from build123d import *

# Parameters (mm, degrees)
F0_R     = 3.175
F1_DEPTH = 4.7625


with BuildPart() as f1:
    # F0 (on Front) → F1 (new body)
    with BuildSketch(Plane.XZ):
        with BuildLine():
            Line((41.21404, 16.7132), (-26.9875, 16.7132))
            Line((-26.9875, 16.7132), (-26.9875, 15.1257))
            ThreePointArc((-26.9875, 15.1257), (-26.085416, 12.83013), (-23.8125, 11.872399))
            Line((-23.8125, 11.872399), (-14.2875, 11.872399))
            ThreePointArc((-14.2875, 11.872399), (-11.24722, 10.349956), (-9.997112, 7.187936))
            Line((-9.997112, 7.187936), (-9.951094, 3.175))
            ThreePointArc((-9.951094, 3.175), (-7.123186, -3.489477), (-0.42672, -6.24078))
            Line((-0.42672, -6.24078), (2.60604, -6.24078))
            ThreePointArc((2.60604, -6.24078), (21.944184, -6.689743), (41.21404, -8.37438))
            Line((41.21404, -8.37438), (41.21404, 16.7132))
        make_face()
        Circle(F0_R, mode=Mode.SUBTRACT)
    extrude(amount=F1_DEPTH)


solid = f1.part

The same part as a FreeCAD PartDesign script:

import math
import FreeCAD as App
import Part
import Sketcher

V = App.Vector
Q = App.Units.Quantity

doc = App.newDocument("Part")
body = doc.addObject("PartDesign::Body", "Body")

# Sketch on XZ plane
sketch1 = body.newObject("Sketcher::SketchObject", "Sketch")
sketch1.AttachmentSupport = (doc.getObject("XZ_Plane"), [""])
sketch1.MapMode = "FlatFace"
sketch1.addGeometry(Part.LineSegment(V(41.2, 16.7, 0), V(-27, 16.7, 0)), False)
sketch1.addGeometry(Part.LineSegment(V(-27, 16.7, 0), V(-27, 15.1, 0)), False)
sketch1.addGeometry(Part.ArcOfCircle(Part.Circle(V(-23.8, 15, 0), V(0, 0, 1), 3.2), math.radians(179), math.radians(270)), False)
sketch1.addGeometry(Part.LineSegment(V(-23.8, 11.9, 0), V(-14.3, 11.9, 0)), False)
sketch1.addGeometry(Part.ArcOfCircle(Part.Circle(V(-14.8, 7.1, 0), V(0, 0, 1), 4.8), math.radians(1), math.radians(84)), False)
sketch1.addGeometry(Part.LineSegment(V(-10, 7.2, 0), V(-10, 3.2, 0)), False)
sketch1.addGeometry(Part.ArcOfCircle(Part.Circle(V(-0.4, 3.3, 0), V(0, 0, 1), 9.5), math.radians(-179), math.radians(-90)), False)
sketch1.addGeometry(Part.LineSegment(V(-0.4, -6.2, 0), V(2.6, -6.2, 0)), False)
sketch1.addGeometry(Part.ArcOfCircle(Part.Circle(V(5.3, -308.6, 0), V(0, 0, 1), 302.3), math.radians(83.17), math.radians(90.5)), False)
sketch1.addGeometry(Part.LineSegment(V(41.2, -8.4, 0), V(41.2, 16.7, 0)), False)
sketch1.addGeometry(Part.Circle(V(0, 0, 0), V(0, 0, 1), 3.2), False)
sketch1.addConstraint(Sketcher.Constraint("Coincident", 0, 2, 1, 1))
sketch1.addConstraint(Sketcher.Constraint("Coincident", 1, 2, 2, 1))
sketch1.addConstraint(Sketcher.Constraint("Tangent", 2, 2, 3, 1))
sketch1.addConstraint(Sketcher.Constraint("Coincident", 3, 2, 4, 2))
sketch1.addConstraint(Sketcher.Constraint("Tangent", 4, 1, 5, 1))
sketch1.addConstraint(Sketcher.Constraint("Tangent", 5, 2, 6, 1))
sketch1.addConstraint(Sketcher.Constraint("Tangent", 6, 2, 7, 1))
sketch1.addConstraint(Sketcher.Constraint("Coincident", 7, 2, 8, 2))
sketch1.addConstraint(Sketcher.Constraint("Coincident", 8, 1, 9, 1))
sketch1.addConstraint(Sketcher.Constraint("Coincident", 9, 2, 0, 1))
sketch1.addConstraint(Sketcher.Constraint("Horizontal", 0))
sketch1.addConstraint(Sketcher.Constraint("Vertical", 1))
sketch1.addConstraint(Sketcher.Constraint("Horizontal", 3))
sketch1.addConstraint(Sketcher.Constraint("Horizontal", 7))
sketch1.addConstraint(Sketcher.Constraint("Vertical", 9))
sketch1.addConstraint(Sketcher.Constraint("Coincident", 10, 3, -1, 1))
sketch1.addConstraint(Sketcher.Constraint("Diameter", 10, Q("0.25 in")))
sketch1.addConstraint(Sketcher.Constraint("Radius", 4, Q("0.1875 in")))
sketch1.addConstraint(Sketcher.Constraint("Radius", 6, Q("0.375 in")))
sketch1.addConstraint(Sketcher.Constraint("DistanceX", 1, 2, 3, 2, Q("0.5 in")))
sketch1.addConstraint(Sketcher.Constraint("DistanceX", 3, 1, 3, 2, Q("0.375 in")))
sketch1.addConstraint(Sketcher.Constraint("DistanceY", 1, 2, 1, 1, Q("0.0625 in")))
sketch1.addConstraint(Sketcher.Constraint("DistanceX", 7, 2, 8, 1, Q("1.52 in")))
sketch1.addConstraint(Sketcher.Constraint("Distance", 5, Q("0.158 in")))
sketch1.addConstraint(Sketcher.Constraint("DistanceX", 0, 2, 0, 1, Q("2.6851 in")))
sketch1.addConstraint(Sketcher.Constraint("DistanceX", 7, 1, 7, 2, Q("0.1194 in")))
sketch1.addConstraint(Sketcher.Constraint("DistanceY", 9, 1, 9, 2, Q("0.9877 in")))
sketch1.addConstraint(Sketcher.Constraint("DistanceX", 2, 3, -1, 1, Q("0.9375 in")))
sketch1.addConstraint(Sketcher.Constraint("DistanceY", -1, 1, 0, 2, Q("0.658 in")))
sketch1.addConstraint(Sketcher.Constraint("DistanceY", -1, 1, 5, 2, Q("0.125 in")))
sketch1.addConstraint(Sketcher.Constraint("Radius", 8, Q("302.341318 mm")))
sketch1.addConstraint(Sketcher.Constraint("DistanceY", 8, 1, 7, 2, Q("0.084 in")))
pad1 = body.newObject("PartDesign::Pad", "Pad")
pad1.Profile = sketch1
pad1.Length = Q("0.1875 in")

doc.recompute()
